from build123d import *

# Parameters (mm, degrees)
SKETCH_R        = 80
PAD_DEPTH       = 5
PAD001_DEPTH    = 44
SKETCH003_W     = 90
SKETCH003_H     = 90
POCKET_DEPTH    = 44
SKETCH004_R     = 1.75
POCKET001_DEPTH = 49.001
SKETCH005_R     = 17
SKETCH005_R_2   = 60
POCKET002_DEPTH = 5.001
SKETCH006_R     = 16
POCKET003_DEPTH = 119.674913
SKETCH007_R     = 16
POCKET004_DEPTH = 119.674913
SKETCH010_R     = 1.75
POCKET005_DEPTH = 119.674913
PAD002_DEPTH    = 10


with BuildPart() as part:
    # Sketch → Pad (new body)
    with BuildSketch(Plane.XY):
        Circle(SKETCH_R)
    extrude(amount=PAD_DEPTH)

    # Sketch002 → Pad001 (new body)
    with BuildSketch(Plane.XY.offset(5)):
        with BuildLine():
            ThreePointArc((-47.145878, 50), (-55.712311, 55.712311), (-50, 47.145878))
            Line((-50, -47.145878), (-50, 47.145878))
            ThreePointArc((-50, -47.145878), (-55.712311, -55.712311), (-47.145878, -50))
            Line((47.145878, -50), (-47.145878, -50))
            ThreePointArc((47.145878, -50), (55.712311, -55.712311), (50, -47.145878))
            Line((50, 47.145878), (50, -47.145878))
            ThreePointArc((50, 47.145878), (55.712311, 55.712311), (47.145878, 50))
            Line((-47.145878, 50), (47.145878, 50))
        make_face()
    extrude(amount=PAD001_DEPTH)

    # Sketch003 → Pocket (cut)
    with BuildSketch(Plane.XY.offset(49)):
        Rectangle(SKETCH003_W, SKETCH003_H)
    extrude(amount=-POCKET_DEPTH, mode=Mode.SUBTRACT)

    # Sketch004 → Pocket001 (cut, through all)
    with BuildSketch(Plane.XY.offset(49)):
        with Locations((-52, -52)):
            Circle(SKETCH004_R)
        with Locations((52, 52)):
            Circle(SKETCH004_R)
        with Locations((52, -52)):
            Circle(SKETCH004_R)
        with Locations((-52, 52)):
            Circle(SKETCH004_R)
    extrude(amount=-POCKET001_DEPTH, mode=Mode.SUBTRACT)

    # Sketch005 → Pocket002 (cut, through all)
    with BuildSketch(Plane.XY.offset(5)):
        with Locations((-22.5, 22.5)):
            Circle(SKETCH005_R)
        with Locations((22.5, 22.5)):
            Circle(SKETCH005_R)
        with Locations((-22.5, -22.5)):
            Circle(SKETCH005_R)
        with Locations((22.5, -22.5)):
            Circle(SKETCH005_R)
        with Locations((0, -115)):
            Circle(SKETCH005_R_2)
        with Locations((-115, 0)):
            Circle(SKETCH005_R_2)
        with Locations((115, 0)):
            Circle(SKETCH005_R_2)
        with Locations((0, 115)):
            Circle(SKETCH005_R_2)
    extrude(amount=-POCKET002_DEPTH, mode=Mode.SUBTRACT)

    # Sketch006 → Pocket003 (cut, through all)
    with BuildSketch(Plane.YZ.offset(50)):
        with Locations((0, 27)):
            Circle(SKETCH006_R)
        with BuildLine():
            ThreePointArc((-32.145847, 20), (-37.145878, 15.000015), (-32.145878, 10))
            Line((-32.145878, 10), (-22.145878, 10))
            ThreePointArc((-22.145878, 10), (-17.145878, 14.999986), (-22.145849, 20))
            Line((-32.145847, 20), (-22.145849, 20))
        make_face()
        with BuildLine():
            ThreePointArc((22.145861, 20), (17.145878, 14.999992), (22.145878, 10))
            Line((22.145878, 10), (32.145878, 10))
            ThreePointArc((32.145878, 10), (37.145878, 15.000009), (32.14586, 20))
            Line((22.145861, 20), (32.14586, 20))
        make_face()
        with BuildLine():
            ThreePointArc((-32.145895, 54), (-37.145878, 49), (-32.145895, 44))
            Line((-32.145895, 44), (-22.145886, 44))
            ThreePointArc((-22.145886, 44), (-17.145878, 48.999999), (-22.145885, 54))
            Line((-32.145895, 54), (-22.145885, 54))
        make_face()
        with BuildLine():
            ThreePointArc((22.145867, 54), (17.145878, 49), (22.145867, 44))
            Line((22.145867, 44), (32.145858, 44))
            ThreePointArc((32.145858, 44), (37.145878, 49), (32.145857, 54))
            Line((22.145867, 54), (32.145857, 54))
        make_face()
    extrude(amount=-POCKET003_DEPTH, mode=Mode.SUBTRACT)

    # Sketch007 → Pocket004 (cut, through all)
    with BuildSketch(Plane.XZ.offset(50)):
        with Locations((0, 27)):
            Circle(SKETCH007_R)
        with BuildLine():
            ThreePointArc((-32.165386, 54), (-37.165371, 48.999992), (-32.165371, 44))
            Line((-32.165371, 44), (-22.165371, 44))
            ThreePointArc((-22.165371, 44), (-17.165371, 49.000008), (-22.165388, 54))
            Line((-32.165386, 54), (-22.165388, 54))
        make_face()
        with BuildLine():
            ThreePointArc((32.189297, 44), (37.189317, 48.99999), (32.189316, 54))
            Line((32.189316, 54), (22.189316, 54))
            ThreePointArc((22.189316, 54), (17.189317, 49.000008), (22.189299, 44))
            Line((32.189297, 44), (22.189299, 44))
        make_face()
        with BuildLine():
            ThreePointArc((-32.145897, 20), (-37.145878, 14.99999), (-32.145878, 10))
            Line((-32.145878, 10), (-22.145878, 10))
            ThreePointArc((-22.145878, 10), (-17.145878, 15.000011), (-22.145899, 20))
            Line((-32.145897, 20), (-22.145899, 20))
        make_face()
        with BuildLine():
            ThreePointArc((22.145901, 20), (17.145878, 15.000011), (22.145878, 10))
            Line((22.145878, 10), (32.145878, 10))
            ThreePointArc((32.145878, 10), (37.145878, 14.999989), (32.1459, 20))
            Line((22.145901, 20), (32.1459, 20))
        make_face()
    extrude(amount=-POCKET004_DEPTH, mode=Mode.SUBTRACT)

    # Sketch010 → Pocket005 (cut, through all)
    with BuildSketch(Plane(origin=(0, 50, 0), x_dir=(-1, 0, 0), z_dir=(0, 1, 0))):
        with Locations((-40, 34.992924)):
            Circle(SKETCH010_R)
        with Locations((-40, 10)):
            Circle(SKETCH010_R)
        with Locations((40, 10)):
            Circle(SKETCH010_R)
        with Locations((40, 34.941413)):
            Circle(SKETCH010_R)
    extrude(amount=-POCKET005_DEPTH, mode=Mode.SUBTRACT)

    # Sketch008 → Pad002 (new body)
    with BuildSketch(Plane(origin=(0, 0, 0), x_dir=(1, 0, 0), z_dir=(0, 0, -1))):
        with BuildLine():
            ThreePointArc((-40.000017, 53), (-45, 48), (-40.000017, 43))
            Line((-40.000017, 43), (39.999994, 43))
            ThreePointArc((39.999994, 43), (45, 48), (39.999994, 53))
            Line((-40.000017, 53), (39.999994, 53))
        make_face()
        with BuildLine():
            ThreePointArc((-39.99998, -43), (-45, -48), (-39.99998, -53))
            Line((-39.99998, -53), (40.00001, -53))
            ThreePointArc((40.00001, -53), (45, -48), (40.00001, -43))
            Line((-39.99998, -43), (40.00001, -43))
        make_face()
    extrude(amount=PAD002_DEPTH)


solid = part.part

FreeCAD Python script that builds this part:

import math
import FreeCAD as App
import Part
import Sketcher

V = App.Vector


def add_polygon(sketch, points):
    """Adds a closed chain of lines whose ends are joined by coincident constraints."""
    first, n = sketch.GeometryCount, len(points)
    for a, b in zip(points, points[1:] + points[:1]):
        sketch.addGeometry(Part.LineSegment(App.Vector(*a, 0), App.Vector(*b, 0)), False)
    for i in range(n):
        sketch.addConstraint(Sketcher.Constraint("Coincident", first + i, 2, first + (i + 1) % n, 1))

doc = App.newDocument("Part")
body = doc.addObject("PartDesign::Body", "Body")

sketch1 = body.newObject("Sketcher::SketchObject", "Sketch")
sketch1.AttachmentSupport = (doc.getObject("XY_Plane"), [""])
sketch1.MapMode = "FlatFace"
sketch1.addGeometry(Part.Circle(V(0, 0, 0), V(0, 0, 1), 80), False)
sketch1.addConstraint(Sketcher.Constraint("Coincident", 0, 3, -1, 1))
sketch1.addConstraint(Sketcher.Constraint("Diameter", 0, 160.0))
pad1 = body.newObject("PartDesign::Pad", "Pad")
pad1.Profile = sketch1
pad1.Length = 5

sketch2 = body.newObject("Sketcher::SketchObject", "Sketch001")
sketch2.AttachmentSupport = (doc.getObject("XY_Plane"), [""])
sketch2.MapMode = "FlatFace"
sketch2.AttachmentOffset = App.Placement(V(0, 0, 5), App.Rotation())
sketch2.addGeometry(Part.ArcOfCircle(Part.Circle(V(-52, 52, 0), V(0, 0, 1), 5.3), math.radians(-22), math.radians(292)), False)
sketch2.addGeometry(Part.LineSegment(V(-50, 47.1, 0), V(-50, -47.1, 0)), False)
sketch2.addGeometry(Part.ArcOfCircle(Part.Circle(V(-52, -52, 0), V(0, 0, 1), 5.3), math.radians(68), math.radians(382)), False)
sketch2.addGeometry(Part.LineSegment(V(-47.1, -50, 0), V(47.1, -50, 0)), False)
sketch2.addGeometry(Part.ArcOfCircle(Part.Circle(V(52, -52, 0), V(0, 0, 1), 5.3), math.radians(158), math.radians(472)), False)
sketch2.addGeometry(Part.LineSegment(V(50, -47.1, 0), V(50, 47.1, 0)), False)
sketch2.addGeometry(Part.ArcOfCircle(Part.Circle(V(52, 52, 0), V(0, 0, 1), 5.3), math.radians(-112), math.radians(202)), False)
sketch2.addGeometry(Part.LineSegment(V(47.1, 50, 0), V(-47.1, 50, 0)), False)
sketch2.addConstraint(Sketcher.Constraint("Coincident", 0, 2, 1, 1))
sketch2.addConstraint(Sketcher.Constraint("Coincident", 1, 2, 2, 1))
sketch2.addConstraint(Sketcher.Constraint("Coincident", 2, 2, 3, 1))
sketch2.addConstraint(Sketcher.Constraint("Coincident", 3, 2, 4, 1))
sketch2.addConstraint(Sketcher.Constraint("Coincident", 4, 2, 5, 1))
sketch2.addConstraint(Sketcher.Constraint("Coincident", 5, 2, 6, 1))
sketch2.addConstraint(Sketcher.Constraint("Coincident", 6, 2, 7, 1))
sketch2.addConstraint(Sketcher.Constraint("Coincident", 7, 2, 0, 1))
sketch2.addConstraint(Sketcher.Constraint("Vertical", 1))
sketch2.addConstraint(Sketcher.Constraint("Horizontal", 3))
sketch2.addConstraint(Sketcher.Constraint("Vertical", 5))
sketch2.addConstraint(Sketcher.Constraint("Horizontal", 7))
sketch2.addConstraint(Sketcher.Constraint("Equal", 0, 2))
sketch2.addConstraint(Sketcher.Constraint("Equal", 2, 4))
sketch2.addConstraint(Sketcher.Constraint("Equal", 4, 6))
sketch2.addConstraint(Sketcher.Constraint("Symmetric", 0, 3, 4, 3, -1, 1))
sketch2.addConstraint(Sketcher.Constraint("Symmetric", 2, 3, 6, 3, -1, 1))
sketch2.addConstraint(Sketcher.Constraint("Symmetric", 2, 3, 4, 3, -2))
sketch2.addConstraint(Sketcher.Constraint("Horizontal", 1, 2, 4, 2))
sketch2.addConstraint(Sketcher.Constraint("Vertical", 3, 2, 6, 2))
sketch2.addConstraint(Sketcher.Constraint("Equal", 7, 1))
sketch2.addConstraint(Sketcher.Constraint("Radius", 0, 5.25))
sketch2.addConstraint(Sketcher.Constraint("DistanceX", 0, 3, -1, 1, 52.0))
sketch2.addConstraint(Sketcher.Constraint("DistanceY", -1, 1, 0, 3, 52.0))
sketch2.addConstraint(Sketcher.Constraint("DistanceX", 0, 2, -1, 1, 50.0))
pad2 = body.newObject("PartDesign::Pad", "Pad001")
pad2.Profile = sketch2
pad2.Length = 44

sketch3 = body.newObject("Sketcher::SketchObject", "Sketch002")
sketch3.AttachmentSupport = (doc.getObject("XY_Plane"), [""])
sketch3.MapMode = "FlatFace"
sketch3.AttachmentOffset = App.Placement(V(0, 0, 49), App.Rotation())
add_polygon(sketch3, [(-45, 45), (-45, -45), (45, -45), (45, 45)])
sketch3.addConstraint(Sketcher.Constraint("Vertical", 0))
sketch3.addConstraint(Sketcher.Constraint("Horizontal", 1))
sketch3.addConstraint(Sketcher.Constraint("Vertical", 2))
sketch3.addConstraint(Sketcher.Constraint("Horizontal", 3))
sketch3.addConstraint(Sketcher.Constraint("Symmetric", 0, 2, 2, 2, -1, 1))
sketch3.addConstraint(Sketcher.Constraint("Equal", 3, 0))
sketch3.addConstraint(Sketcher.Constraint("DistanceX", 1, 1, 1, 2, 90.0))
pocket1 = body.newObject("PartDesign::Pocket", "Pocket")
pocket1.Profile = sketch3
pocket1.Length = 44

sketch4 = body.newObject("Sketcher::SketchObject", "Sketch003")
sketch4.AttachmentSupport = (doc.getObject("XY_Plane"), [""])
sketch4.MapMode = "FlatFace"
sketch4.AttachmentOffset = App.Placement(V(0, 0, 49), App.Rotation())
sketch4.addGeometry(Part.Circle(V(-52, -52, 0), V(0, 0, 1), 1.8), False)
sketch4.addGeometry(Part.Circle(V(52, 52, 0), V(0, 0, 1), 1.8), False)
sketch4.addGeometry(Part.Circle(V(52, -52, 0), V(0, 0, 1), 1.8), False)
sketch4.addGeometry(Part.Circle(V(-52, 52, 0), V(0, 0, 1), 1.8), False)
sketch4.addConstraint(Sketcher.Constraint("Equal", 0, 1))
sketch4.addConstraint(Sketcher.Constraint("Equal", 1, 2))
sketch4.addConstraint(Sketcher.Constraint("Equal", 2, 3))
sketch4.addConstraint(Sketcher.Constraint("Symmetric", 0, 3, 1, 3, -1, 1))
sketch4.addConstraint(Sketcher.Constraint("Symmetric", 2, 3, 3, 3, -1, 1))
sketch4.addConstraint(Sketcher.Constraint("Symmetric", 0, 3, 2, 3, -2))
sketch4.addConstraint(Sketcher.Constraint("Diameter", 0, 3.5))
sketch4.addConstraint(Sketcher.Constraint("DistanceX", 0, 3, -1, 1, 52.0))
sketch4.addConstraint(Sketcher.Constraint("DistanceY", 0, 3, -1, 1, 52.0))
pocket2 = body.newObject("PartDesign::Pocket", "Pocket001")
pocket2.Profile = sketch4
pocket2.Type = "ThroughAll"

sketch5 = body.newObject("Sketcher::SketchObject", "Sketch004")
sketch5.AttachmentSupport = (doc.getObject("XY_Plane"), [""])
sketch5.MapMode = "FlatFace"
sketch5.AttachmentOffset = App.Placement(V(0, 0, 5), App.Rotation())
sketch5.addGeometry(Part.Circle(V(-22, 22, 0), V(0, 0, 1), 17), False)
sketch5.addGeometry(Part.Circle(V(22, 22, 0), V(0, 0, 1), 17), False)
sketch5.addGeometry(Part.Circle(V(-22, -22, 0), V(0, 0, 1), 17), False)
sketch5.addGeometry(Part.Circle(V(22, -22, 0), V(0, 0, 1), 17), False)
sketch5.addGeometry(Part.Circle(V(0, -115, 0), V(0, 0, 1), 60), False)
sketch5.addGeometry(Part.Circle(V(-115, 0, 0), V(0, 0, 1), 60), False)
sketch5.addGeometry(Part.Circle(V(115, 0, 0), V(0, 0, 1), 60), False)
sketch5.addGeometry(Part.Circle(V(0, 115, 0), V(0, 0, 1), 60), False)
sketch5.addConstraint(Sketcher.Constraint("Equal", 0, 1))
sketch5.addConstraint(Sketcher.Constraint("Equal", 1, 2))
sketch5.addConstraint(Sketcher.Constraint("Equal", 2, 3))
sketch5.addConstraint(Sketcher.Constraint("Equal", 4, 5))
sketch5.addConstraint(Sketcher.Constraint("Equal", 5, 6))
sketch5.addConstraint(Sketcher.Constraint("Equal", 6, 7))
sketch5.addConstraint(Sketcher.Constraint("Symmetric", 1, 3, 2, 3, -1, 1))
sketch5.addConstraint(Sketcher.Constraint("Symmetric", 0, 3, 3, 3, -1, 1))
sketch5.addConstraint(Sketcher.Constraint("Symmetric", 5, 3, 6, 3, -1, 1))
sketch5.addConstraint(Sketcher.Constraint("Symmetric", 4, 3, 7, 3, -1, 1))
sketch5.addConstraint(Sketcher.Constraint("Symmetric", 0, 3, 1, 3, -2))
sketch5.addConstraint(Sketcher.Constraint("PointOnObject", 4, 3, -2))
sketch5.addConstraint(Sketcher.Constraint("PointOnObject", 5, 3, -1))
sketch5.addConstraint(Sketcher.Constraint("Diameter", 0, 34.0))
sketch5.addConstraint(Sketcher.Constraint("Diameter", 4, 120.0))
sketch5.addConstraint(Sketcher.Constraint("DistanceY", 4, 3, -1, 1, 115.0))
sketch5.addConstraint(Sketcher.Constraint("DistanceX", 5, 3, -1, 1, 115.0))
sketch5.addConstraint(Sketcher.Constraint("DistanceX", 0, 3, 1, 3, 45.0))
sketch5.addConstraint(Sketcher.Constraint("DistanceY", 2, 3, 0, 3, 45.0))
pocket3 = body.newObject("PartDesign::Pocket", "Pocket002")
pocket3.Profile = sketch5
pocket3.Type = "ThroughAll"

sketch6 = body.newObject("Sketcher::SketchObject", "Sketch005")
sketch6.AttachmentSupport = (doc.getObject("YZ_Plane"), [""])
sketch6.MapMode = "FlatFace"
sketch6.AttachmentOffset = App.Placement(V(0, 0, 50), App.Rotation())
sketch6.addGeometry(Part.Circle(V(0, 27, 0), V(0, 0, 1), 16), False)
sketch6.addGeometry(Part.ArcOfCircle(Part.Circle(V(-32, 15, 0), V(0, 0, 1), 5), math.radians(90), math.radians(270)), False)
sketch6.addGeometry(Part.LineSegment(V(-32, 10, 0), V(-22, 10, 0)), False)
sketch6.addGeometry(Part.ArcOfCircle(Part.Circle(V(-22, 15, 0), V(0, 0, 1), 5), math.radians(-90), math.radians(90)), False)
sketch6.addGeometry(Part.LineSegment(V(-22, 20, 0), V(-32, 20, 0)), False)
sketch6.addGeometry(Part.ArcOfCircle(Part.Circle(V(22, 15, 0), V(0, 0, 1), 5), math.radians(90), math.radians(270)), False)
sketch6.addGeometry(Part.LineSegment(V(22, 10, 0), V(32, 10, 0)), False)
sketch6.addGeometry(Part.ArcOfCircle(Part.Circle(V(32, 15, 0), V(0, 0, 1), 5), math.radians(-90), math.radians(90)), False)
sketch6.addGeometry(Part.LineSegment(V(32, 20, 0), V(22, 20, 0)), False)
sketch6.addGeometry(Part.ArcOfCircle(Part.Circle(V(-32, 49, 0), V(0, 0, 1), 5), math.radians(90), math.radians(270)), False)
sketch6.addGeometry(Part.LineSegment(V(-32, 44, 0), V(-22, 44, 0)), False)
sketch6.addGeometry(Part.ArcOfCircle(Part.Circle(V(-22, 49, 0), V(0, 0, 1), 5), math.radians(-90), math.radians(90)), False)
sketch6.addGeometry(Part.LineSegment(V(-22, 54, 0), V(-32, 54, 0)), False)
sketch6.addGeometry(Part.ArcOfCircle(Part.Circle(V(22, 49, 0), V(0, 0, 1), 5), math.radians(90), math.radians(270)), False)
sketch6.addGeometry(Part.LineSegment(V(22, 44, 0), V(32, 44, 0)), False)
sketch6.addGeometry(Part.ArcOfCircle(Part.Circle(V(32, 49, 0), V(0, 0, 1), 5), math.radians(-90), math.radians(90)), False)
sketch6.addGeometry(Part.LineSegment(V(32, 54, 0), V(22, 54, 0)), False)
sketch6.addConstraint(Sketcher.Constraint("Tangent", 1, 2, 2, 1))
sketch6.addConstraint(Sketcher.Constraint("Tangent", 2, 2, 3, 1))
sketch6.addConstraint(Sketcher.Constraint("Coincident", 3, 2, 4, 1))
sketch6.addConstraint(Sketcher.Constraint("Coincident", 4, 2, 1, 1))
sketch6.addConstraint(Sketcher.Constraint("Tangent", 5, 2, 6, 1))
sketch6.addConstraint(Sketcher.Constraint("Tangent", 6, 2, 7, 1))
sketch6.addConstraint(Sketcher.Constraint("Coincident", 7, 2, 8, 1))
sketch6.addConstraint(Sketcher.Constraint("Coincident", 8, 2, 5, 1))
sketch6.addConstraint(Sketcher.Constraint("Coincident", 9, 2, 10, 1))
sketch6.addConstraint(Sketcher.Constraint("Tangent", 10, 2, 11, 1))
sketch6.addConstraint(Sketcher.Constraint("Tangent", 11, 2, 12, 1))
sketch6.addConstraint(Sketcher.Constraint("Coincident", 12, 2, 9, 1))
sketch6.addConstraint(Sketcher.Constraint("Coincident", 13, 2, 14, 1))
sketch6.addConstraint(Sketcher.Constraint("Coincident", 14, 2, 15, 1))
sketch6.addConstraint(Sketcher.Constraint("Coincident", 15, 2, 16, 1))
sketch6.addConstraint(Sketcher.Constraint("Coincident", 16, 2, 13, 1))
sketch6.addConstraint(Sketcher.Constraint("Horizontal", 2))
sketch6.addConstraint(Sketcher.Constraint("Horizontal", 4))
sketch6.addConstraint(Sketcher.Constraint("Horizontal", 6))
sketch6.addConstraint(Sketcher.Constraint("Horizontal", 8))
sketch6.addConstraint(Sketcher.Constraint("Horizontal", 10))
sketch6.addConstraint(Sketcher.Constraint("Horizontal", 12))
sketch6.addConstraint(Sketcher.Constraint("Horizontal", 14))
sketch6.addConstraint(Sketcher.Constraint("Horizontal", 16))
sketch6.addConstraint(Sketcher.Constraint("Equal", 3, 5))
sketch6.addConstraint(Sketcher.Constraint("Equal", 7, 9))
sketch6.addConstraint(Sketcher.Constraint("Equal", 11, 13))
sketch6.addConstraint(Sketcher.Constraint("Symmetric", 3, 3, 5, 3, -2))
sketch6.addConstraint(Sketcher.Constraint("Symmetric", 11, 3, 13, 3, -2))
sketch6.addConstraint(Sketcher.Constraint("PointOnObject", 0, 3, -2))
sketch6.addConstraint(Sketcher.Constraint("Vertical", 1, 3, 9, 3))
sketch6.addConstraint(Sketcher.Constraint("Vertical", 3, 3, 11, 3))
sketch6.addConstraint(Sketcher.Constraint("Vertical", 7, 3, 15, 3))
sketch6.addConstraint(Sketcher.Constraint("Vertical", 9, 2, 12, 2))
sketch6.addConstraint(Sketcher.Constraint("Vertical", 14, 2, 15, 2))
sketch6.addConstraint(Sketcher.Constraint("Vertical", 13, 2, 16, 2))
sketch6.addConstraint(Sketcher.Constraint("Equal", 2, 4))
sketch6.addConstraint(Sketcher.Constraint("Equal", 4, 6))
sketch6.addConstraint(Sketcher.Constraint("Equal", 6, 8))
sketch6.addConstraint(Sketcher.Constraint("Diameter", 0, 32.0))
sketch6.addConstraint(Sketcher.Constraint("Radius", 1, 5.0))
sketch6.addConstraint(Sketcher.Constraint("DistanceX", 2, 1, 2, 2, 10.0))
sketch6.addConstraint(Sketcher.Constraint("DistanceY", -1, 1, 0, 3, 27.0))
sketch6.addConstraint(Sketcher.Constraint("DistanceY", -1, 1, 1, 3, 15.0))
sketch6.addConstraint(Sketcher.Constraint("DistanceY", -1, 1, 9, 3, 49.0))
sketch6.addConstraint(Sketcher.Constraint("DistanceX", 10, 1, 10, 2, 10.000009))
sketch6.addConstraint(Sketcher.Constraint("DistanceX", 14, 1, 14, 2, 9.999991))
sketch6.addConstraint(Sketcher.Constraint("DistanceX", 1, 3, -1, 1, 32.145878))
sketch6.addConstraint(Sketcher.Constraint("DistanceX", 3, 2, -1, 1, 22.145849))
sketch6.addConstraint(Sketcher.Constraint("DistanceX", -1, 1, 7, 2, 32.14586))
sketch6.addConstraint(Sketcher.Constraint("DistanceX", 13, 2, 15, 3, 10.000011))
pocket4 = body.newObject("PartDesign::Pocket", "Pocket003")
pocket4.Profile = sketch6
pocket4.Type = "ThroughAll"

sketch7 = body.newObject("Sketcher::SketchObject", "Sketch006")
sketch7.AttachmentSupport = (doc.getObject("XZ_Plane"), [""])
sketch7.MapMode = "FlatFace"
sketch7.AttachmentOffset = App.Placement(V(0, 0, 50), App.Rotation())
sketch7.addGeometry(Part.Circle(V(0, 27, 0), V(0, 0, 1), 16), False)
sketch7.addGeometry(Part.ArcOfCircle(Part.Circle(V(-32, 49, 0), V(0, 0, 1), 5), math.radians(90), math.radians(270)), False)
sketch7.addGeometry(Part.LineSegment(V(-32, 44, 0), V(-22, 44, 0)), False)
sketch7.addGeometry(Part.ArcOfCircle(Part.Circle(V(-22, 49, 0), V(0, 0, 1), 5), math.radians(-90), math.radians(90)), False)
sketch7.addGeometry(Part.LineSegment(V(-22, 54, 0), V(-32, 54, 0)), False)
sketch7.addGeometry(Part.ArcOfCircle(Part.Circle(V(32, 49, 0), V(0, 0, 1), 5), math.radians(-90), math.radians(90)), False)
sketch7.addGeometry(Part.LineSegment(V(32, 54, 0), V(22, 54, 0)), False)
sketch7.addGeometry(Part.ArcOfCircle(Part.Circle(V(22, 49, 0), V(0, 0, 1), 5), math.radians(90), math.radians(270)), False)
sketch7.addGeometry(Part.LineSegment(V(22, 44, 0), V(32, 44, 0)), False)
sketch7.addGeometry(Part.ArcOfCircle(Part.Circle(V(-32, 15, 0), V(0, 0, 1), 5), math.radians(90), math.radians(270)), False)
sketch7.addGeometry(Part.LineSegment(V(-32, 10, 0), V(-22, 10, 0)), False)
sketch7.addGeometry(Part.ArcOfCircle(Part.Circle(V(-22, 15, 0), V(0, 0, 1), 5), math.radians(-90), math.radians(90)), False)
sketch7.addGeometry(Part.LineSegment(V(-22, 20, 0), V(-32, 20, 0)), False)
sketch7.addGeometry(Part.ArcOfCircle(Part.Circle(V(22, 15, 0), V(0, 0, 1), 5), math.radians(90), math.radians(270)), False)
sketch7.addGeometry(Part.LineSegment(V(22, 10, 0), V(32, 10, 0)), False)
sketch7.addGeometry(Part.ArcOfCircle(Part.Circle(V(32, 15, 0), V(0, 0, 1), 5), math.radians(-90), math.radians(90)), False)
sketch7.addGeometry(Part.LineSegment(V(32, 20, 0), V(22, 20, 0)), False)
sketch7.addConstraint(Sketcher.Constraint("Tangent", 1, 2, 2, 1))
sketch7.addConstraint(Sketcher.Constraint("Tangent", 2, 2, 3, 1))
sketch7.addConstraint(Sketcher.Constraint("Coincident", 3, 2, 4, 1))
sketch7.addConstraint(Sketcher.Constraint("Coincident", 4, 2, 1, 1))
sketch7.addConstraint(Sketcher.Constraint("Tangent", 5, 2, 6, 1))
sketch7.addConstraint(Sketcher.Constraint("Tangent", 6, 2, 7, 1))
sketch7.addConstraint(Sketcher.Constraint("Coincident", 7, 2, 8, 1))
sketch7.addConstraint(Sketcher.Constraint("Coincident", 8, 2, 5, 1))
sketch7.addConstraint(Sketcher.Constraint("Tangent", 9, 2, 10, 1))
sketch7.addConstraint(Sketcher.Constraint("Tangent", 10, 2, 11, 1))
sketch7.addConstraint(Sketcher.Constraint("Coincident", 11, 2, 12, 1))
sketch7.addConstraint(Sketcher.Constraint("Coincident", 12, 2, 9, 1))
sketch7.addConstraint(Sketcher.Constraint("Tangent", 13, 2, 14, 1))
sketch7.addConstraint(Sketcher.Constraint("Tangent", 14, 2, 15, 1))
sketch7.addConstraint(Sketcher.Constraint("Coincident", 15, 2, 16, 1))
sketch7.addConstraint(Sketcher.Constraint("Coincident", 16, 2, 13, 1))
sketch7.addConstraint(Sketcher.Constraint("Horizontal", 2))
sketch7.addConstraint(Sketcher.Constraint("Horizontal", 4))
sketch7.addConstraint(Sketcher.Constraint("Horizontal", 6))
sketch7.addConstraint(Sketcher.Constraint("Horizontal", 8))
sketch7.addConstraint(Sketcher.Constraint("Horizontal", 10))
sketch7.addConstraint(Sketcher.Constraint("Horizontal", 12))
sketch7.addConstraint(Sketcher.Constraint("Horizontal", 14))
sketch7.addConstraint(Sketcher.Constraint("Horizontal", 16))
sketch7.addConstraint(Sketcher.Constraint("Equal", 3, 5))
sketch7.addConstraint(Sketcher.Constraint("Equal", 7, 9))
sketch7.addConstraint(Sketcher.Constraint("Equal", 11, 13))
sketch7.addConstraint(Sketcher.Constraint("Symmetric", 11, 3, 13, 3, -2))
sketch7.addConstraint(Sketcher.Constraint("PointOnObject", 0, 3, -2))
sketch7.addConstraint(Sketcher.Constraint("Horizontal", 3, 3, 5, 3))
sketch7.addConstraint(Sketcher.Constraint("Equal", 4, 6))
sketch7.addConstraint(Sketcher.Constraint("Equal", 6, 8))
sketch7.addConstraint(Sketcher.Constraint("Equal", 8, 10))
sketch7.addConstraint(Sketcher.Constraint("Equal", 8, 12))
sketch7.addConstraint(Sketcher.Constraint("Equal", 10, 14))
sketch7.addConstraint(Sketcher.Constraint("Equal", 14, 16))
sketch7.addConstraint(Sketcher.Constraint("Diameter", 0, 32.0))
sketch7.addConstraint(Sketcher.Constraint("Radius", 1, 5.0))
sketch7.addConstraint(Sketcher.Constraint("DistanceX", 2, 1, 2, 2, 10.0))
sketch7.addConstraint(Sketcher.Constraint("DistanceX", 6, 2, 6, 1, 10.0))
sketch7.addConstraint(Sketcher.Constraint("DistanceY", -1, 1, 0, 3, 27.0))
sketch7.addConstraint(Sketcher.Constraint("DistanceY", -1, 1, 1, 3, 49.0))
sketch7.addConstraint(Sketcher.Constraint("DistanceY", -1, 1, 9, 3, 15.0))
sketch7.addConstraint(Sketcher.Constraint("DistanceX", -1, 1, 7, 2, 22.189299))
sketch7.addConstraint(Sketcher.Constraint("DistanceX", 11, 2, -1, 1, 22.145899))
sketch7.addConstraint(Sketcher.Constraint("DistanceX", -1, 1, 15, 2, 32.1459))
sketch7.addConstraint(Sketcher.Constraint("DistanceX", 1, 3, -1, 1, 32.165371))
sketch7.addConstraint(Sketcher.Constraint("DistanceX", 9, 3, -1, 1, 32.145878))
sketch7.addConstraint(Sketcher.Constraint("DistanceX", 3, 2, -1, 1, 22.165388))
sketch7.addConstraint(Sketcher.Constraint("DistanceX", 3, 3, 5, 3, 54.354688))
pocket5 = body.newObject("PartDesign::Pocket", "Pocket004")
pocket5.Profile = sketch7
pocket5.Type = "ThroughAll"

sketch8 = body.newObject("Sketcher::SketchObject", "Sketch007")
sketch8.AttachmentSupport = (doc.getObject("XZ_Plane"), [""])
sketch8.MapMode = "FlatFace"
sketch8.AttachmentOffset = App.Placement(V(0, 0, -50), App.Rotation())
sketch8.addGeometry(Part.Circle(V(40, 35, 0), V(0, 0, 1), 1.8), False)
sketch8.addGeometry(Part.Circle(V(40, 10, 0), V(0, 0, 1), 1.8), False)
sketch8.addGeometry(Part.Circle(V(-40, 10, 0), V(0, 0, 1), 1.8), False)
sketch8.addGeometry(Part.Circle(V(-40, 34.9, 0), V(0, 0, 1), 1.8), False)
sketch8.addConstraint(Sketcher.Constraint("Equal", 0, 1))
sketch8.addConstraint(Sketcher.Constraint("Equal", 1, 2))
sketch8.addConstraint(Sketcher.Constraint("Equal", 2, 3))
sketch8.addConstraint(Sketcher.Constraint("Symmetric", 1, 3, 2, 3, -2))
sketch8.addConstraint(Sketcher.Constraint("Vertical", 0, 3, 1, 3))
sketch8.addConstraint(Sketcher.Constraint("Vertical", 2, 3, 3, 3))
sketch8.addConstraint(Sketcher.Constraint("Diameter", 0, 3.5))
sketch8.addConstraint(Sketcher.Constraint("DistanceX", -1, 1, 0, 3, 40.0))
sketch8.addConstraint(Sketcher.Constraint("DistanceY", -1, 1, 1, 3, 10.0))
sketch8.addConstraint(Sketcher.Constraint("DistanceY", 3, 3, 0, 3, 0.051511))
sketch8.addConstraint(Sketcher.Constraint("DistanceY", -1, 1, 0, 3, 34.992924))
pocket6 = body.newObject("PartDesign::Pocket", "Pocket005")
pocket6.Profile = sketch8
pocket6.Type = "ThroughAll"
pocket6.Reversed = True

sketch9 = body.newObject("Sketcher::SketchObject", "Sketch008")
sketch9.AttachmentSupport = (doc.getObject("XY_Plane"), [""])
sketch9.MapMode = "FlatFace"
sketch9.addGeometry(Part.ArcOfCircle(Part.Circle(V(-40, -48, 0), V(0, 0, 1), 5), math.radians(90), math.radians(270)), False)
sketch9.addGeometry(Part.LineSegment(V(-40, -43, 0), V(40, -43, 0)), False)
sketch9.addGeometry(Part.ArcOfCircle(Part.Circle(V(40, -48, 0), V(0, 0, 1), 5), math.radians(-90), math.radians(90)), False)
sketch9.addGeometry(Part.LineSegment(V(40, -53, 0), V(-40, -53, 0)), False)
sketch9.addGeometry(Part.ArcOfCircle(Part.Circle(V(-40, 48, 0), V(0, 0, 1), 5), math.radians(90), math.radians(270)), False)
sketch9.addGeometry(Part.LineSegment(V(-40, 53, 0), V(40, 53, 0)), False)
sketch9.addGeometry(Part.ArcOfCircle(Part.Circle(V(40, 48, 0), V(0, 0, 1), 5), math.radians(-90), math.radians(90)), False)
sketch9.addGeometry(Part.LineSegment(V(40, 43, 0), V(-40, 43, 0)), False)
sketch9.addConstraint(Sketcher.Constraint("Coincident", 0, 1, 1, 1))
sketch9.addConstraint(Sketcher.Constraint("Tangent", 1, 2, 2, 2))
sketch9.addConstraint(Sketcher.Constraint("Tangent", 2, 1, 3, 1))
sketch9.addConstraint(Sketcher.Constraint("Coincident", 3, 2, 0, 2))
sketch9.addConstraint(Sketcher.Constraint("Coincident", 4, 1, 5, 1))
sketch9.addConstraint(Sketcher.Constraint("Coincident", 5, 2, 6, 2))
sketch9.addConstraint(Sketcher.Constraint("Coincident", 6, 1, 7, 1))
sketch9.addConstraint(Sketcher.Constraint("Coincident", 7, 2, 4, 2))
sketch9.addConstraint(Sketcher.Constraint("Horizontal", 1))
sketch9.addConstraint(Sketcher.Constraint("Horizontal", 3))
sketch9.addConstraint(Sketcher.Constraint("Horizontal", 5))
sketch9.addConstraint(Sketcher.Constraint("Horizontal", 7))
sketch9.addConstraint(Sketcher.Constraint("Equal", 2, 4))
sketch9.addConstraint(Sketcher.Constraint("Symmetric", 2, 3, 4, 3, -1, 1))
sketch9.addConstraint(Sketcher.Constraint("Vertical", 0, 3, 4, 3))
sketch9.addConstraint(Sketcher.Constraint("Vertical", 2, 3, 6, 3))
sketch9.addConstraint(Sketcher.Constraint("Vertical", 0, 1, 3, 2))
sketch9.addConstraint(Sketcher.Constraint("Vertical", 5, 2, 6, 1))
sketch9.addConstraint(Sketcher.Constraint("Vertical", 4, 1, 7, 2))
sketch9.addConstraint(Sketcher.Constraint("Radius", 0, 5.0))
sketch9.addConstraint(Sketcher.Constraint("DistanceX", 0, 3, -1, 1, 40.0))
sketch9.addConstraint(Sketcher.Constraint("DistanceY", 0, 3, -1, 1, 48.0))
sketch9.addConstraint(Sketcher.Constraint("DistanceX", 1, 1, 1, 2, 80.000011))
sketch9.addConstraint(Sketcher.Constraint("DistanceX", 5, 1, 5, 2, 79.99999))
sketch9.addConstraint(Sketcher.Constraint("DistanceX", 4, 1, -1, 1, 39.99998))
pad3 = body.newObject("PartDesign::Pad", "Pad002")
pad3.Profile = sketch9
pad3.Length = 10
pad3.Reversed = True

doc.recompute()
